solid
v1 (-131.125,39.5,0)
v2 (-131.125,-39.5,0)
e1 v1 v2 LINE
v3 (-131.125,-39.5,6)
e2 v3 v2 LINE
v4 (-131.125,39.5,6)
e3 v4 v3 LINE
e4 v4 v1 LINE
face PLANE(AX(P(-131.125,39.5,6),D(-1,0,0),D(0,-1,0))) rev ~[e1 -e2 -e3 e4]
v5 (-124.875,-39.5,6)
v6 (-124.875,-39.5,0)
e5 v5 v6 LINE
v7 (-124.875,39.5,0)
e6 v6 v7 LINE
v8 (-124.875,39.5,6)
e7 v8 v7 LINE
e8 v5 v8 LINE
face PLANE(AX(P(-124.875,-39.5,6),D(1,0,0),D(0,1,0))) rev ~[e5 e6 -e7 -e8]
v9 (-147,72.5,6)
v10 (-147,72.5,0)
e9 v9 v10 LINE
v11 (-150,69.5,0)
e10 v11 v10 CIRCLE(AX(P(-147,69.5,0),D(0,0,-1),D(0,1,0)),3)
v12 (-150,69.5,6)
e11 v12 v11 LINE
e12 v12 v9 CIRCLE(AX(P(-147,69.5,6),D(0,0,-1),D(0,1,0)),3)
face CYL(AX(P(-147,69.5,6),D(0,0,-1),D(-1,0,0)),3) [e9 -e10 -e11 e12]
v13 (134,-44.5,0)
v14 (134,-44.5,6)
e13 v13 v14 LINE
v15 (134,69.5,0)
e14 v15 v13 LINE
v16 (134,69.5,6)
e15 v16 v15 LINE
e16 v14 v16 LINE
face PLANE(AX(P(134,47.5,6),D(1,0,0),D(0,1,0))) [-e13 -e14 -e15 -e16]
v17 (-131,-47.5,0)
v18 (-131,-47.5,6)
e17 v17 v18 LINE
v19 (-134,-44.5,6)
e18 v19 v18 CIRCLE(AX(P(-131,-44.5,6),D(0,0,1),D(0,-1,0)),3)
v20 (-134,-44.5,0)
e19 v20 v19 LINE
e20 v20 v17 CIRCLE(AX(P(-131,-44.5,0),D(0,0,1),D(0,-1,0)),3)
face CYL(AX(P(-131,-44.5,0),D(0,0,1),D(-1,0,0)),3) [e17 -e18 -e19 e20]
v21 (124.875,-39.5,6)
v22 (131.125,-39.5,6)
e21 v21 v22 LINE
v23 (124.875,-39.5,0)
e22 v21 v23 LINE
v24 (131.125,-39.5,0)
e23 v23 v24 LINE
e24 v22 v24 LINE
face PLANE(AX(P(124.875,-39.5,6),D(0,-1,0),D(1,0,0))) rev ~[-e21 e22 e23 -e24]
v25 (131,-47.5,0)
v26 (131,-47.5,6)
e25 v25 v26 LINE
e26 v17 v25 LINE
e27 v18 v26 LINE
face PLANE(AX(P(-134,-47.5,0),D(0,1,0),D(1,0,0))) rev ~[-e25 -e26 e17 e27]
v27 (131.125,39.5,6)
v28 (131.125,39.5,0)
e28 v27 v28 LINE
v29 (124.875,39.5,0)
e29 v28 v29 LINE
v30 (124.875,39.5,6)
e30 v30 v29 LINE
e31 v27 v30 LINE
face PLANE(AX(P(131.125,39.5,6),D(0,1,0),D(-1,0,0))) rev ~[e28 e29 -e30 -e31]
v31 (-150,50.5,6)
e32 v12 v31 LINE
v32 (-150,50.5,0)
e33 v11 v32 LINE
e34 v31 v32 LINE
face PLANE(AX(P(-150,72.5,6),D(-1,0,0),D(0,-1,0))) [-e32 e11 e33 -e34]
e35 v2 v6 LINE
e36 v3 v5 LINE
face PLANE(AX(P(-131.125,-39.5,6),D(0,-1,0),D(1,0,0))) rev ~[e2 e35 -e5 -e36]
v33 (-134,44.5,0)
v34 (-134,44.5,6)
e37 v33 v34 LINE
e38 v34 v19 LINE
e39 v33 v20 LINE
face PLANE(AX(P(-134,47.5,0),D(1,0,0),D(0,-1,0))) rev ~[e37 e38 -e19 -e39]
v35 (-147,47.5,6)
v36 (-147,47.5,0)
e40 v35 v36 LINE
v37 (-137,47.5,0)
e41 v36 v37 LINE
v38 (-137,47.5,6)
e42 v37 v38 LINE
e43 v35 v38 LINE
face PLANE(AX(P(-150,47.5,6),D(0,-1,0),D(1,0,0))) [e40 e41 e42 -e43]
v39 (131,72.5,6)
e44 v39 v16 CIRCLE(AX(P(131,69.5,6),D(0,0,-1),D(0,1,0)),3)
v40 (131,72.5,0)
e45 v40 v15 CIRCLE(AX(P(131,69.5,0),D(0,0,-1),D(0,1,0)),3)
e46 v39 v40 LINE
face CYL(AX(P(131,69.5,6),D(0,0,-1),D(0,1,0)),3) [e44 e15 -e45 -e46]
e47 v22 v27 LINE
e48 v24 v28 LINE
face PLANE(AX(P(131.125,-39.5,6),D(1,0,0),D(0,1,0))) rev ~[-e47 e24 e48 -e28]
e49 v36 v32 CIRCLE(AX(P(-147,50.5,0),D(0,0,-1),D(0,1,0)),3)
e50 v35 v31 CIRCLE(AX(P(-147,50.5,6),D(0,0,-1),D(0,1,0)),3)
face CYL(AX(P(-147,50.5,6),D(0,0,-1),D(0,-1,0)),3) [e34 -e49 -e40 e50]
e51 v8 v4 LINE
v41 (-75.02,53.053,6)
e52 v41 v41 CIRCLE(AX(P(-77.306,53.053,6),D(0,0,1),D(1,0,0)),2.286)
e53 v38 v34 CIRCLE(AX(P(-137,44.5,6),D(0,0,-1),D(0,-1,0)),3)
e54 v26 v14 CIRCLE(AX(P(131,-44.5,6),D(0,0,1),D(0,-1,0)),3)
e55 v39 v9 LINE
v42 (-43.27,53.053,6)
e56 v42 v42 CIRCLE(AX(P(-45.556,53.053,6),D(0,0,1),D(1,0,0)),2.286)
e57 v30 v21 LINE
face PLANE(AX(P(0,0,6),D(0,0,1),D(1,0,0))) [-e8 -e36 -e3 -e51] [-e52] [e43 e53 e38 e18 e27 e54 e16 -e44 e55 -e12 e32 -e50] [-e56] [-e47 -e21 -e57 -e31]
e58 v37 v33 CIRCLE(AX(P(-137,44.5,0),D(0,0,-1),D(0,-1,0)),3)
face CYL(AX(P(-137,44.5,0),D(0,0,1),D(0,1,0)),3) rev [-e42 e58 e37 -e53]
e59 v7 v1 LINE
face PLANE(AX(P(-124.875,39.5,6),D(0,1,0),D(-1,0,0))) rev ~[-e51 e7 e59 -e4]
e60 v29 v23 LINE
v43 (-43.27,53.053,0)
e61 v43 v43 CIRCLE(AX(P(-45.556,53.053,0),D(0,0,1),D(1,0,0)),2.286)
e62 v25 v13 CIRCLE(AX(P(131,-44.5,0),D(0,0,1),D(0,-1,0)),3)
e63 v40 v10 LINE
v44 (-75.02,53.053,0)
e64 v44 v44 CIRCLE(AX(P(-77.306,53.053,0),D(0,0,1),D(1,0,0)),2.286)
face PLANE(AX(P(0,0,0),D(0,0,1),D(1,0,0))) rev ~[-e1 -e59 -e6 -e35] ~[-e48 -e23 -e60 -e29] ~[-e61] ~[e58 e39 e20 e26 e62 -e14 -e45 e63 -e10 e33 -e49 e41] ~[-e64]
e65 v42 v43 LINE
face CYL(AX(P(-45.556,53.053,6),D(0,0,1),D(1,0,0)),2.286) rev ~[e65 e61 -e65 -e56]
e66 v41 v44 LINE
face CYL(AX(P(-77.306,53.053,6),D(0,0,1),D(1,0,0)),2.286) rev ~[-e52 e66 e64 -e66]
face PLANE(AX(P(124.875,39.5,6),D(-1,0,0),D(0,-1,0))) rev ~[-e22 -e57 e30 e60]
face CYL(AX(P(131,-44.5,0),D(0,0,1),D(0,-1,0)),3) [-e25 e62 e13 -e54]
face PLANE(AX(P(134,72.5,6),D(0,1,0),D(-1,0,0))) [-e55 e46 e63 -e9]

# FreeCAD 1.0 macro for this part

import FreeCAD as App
import Part
import Sketcher

V = App.Vector


def edges_at(feature, points):
    """Names of the edges that pass closest to the given points."""
    edges = feature.Shape.Edges
    near = lambda p: min(range(len(edges)), key=lambda i: edges[i].distToShape(Part.Vertex(*p))[0])
    return sorted({f"Edge{near(p) + 1}" for p in points})


def add_polygon(sketch, points):
    """Adds a closed chain of lines whose ends are joined by coincident constraints."""
    first, n = sketch.GeometryCount, len(points)
    for a, b in zip(points, points[1:] + points[:1]):
        sketch.addGeometry(Part.LineSegment(App.Vector(*a, 0), App.Vector(*b, 0)), False)
    for i in range(n):
        sketch.addConstraint(Sketcher.Constraint("Coincident", first + i, 2, first + (i + 1) % n, 1))

doc = App.newDocument("Part")
params = doc.addObject("Spreadsheet::Sheet", "Params")
for row, (alias, value) in enumerate([
    ("sketch1_width", "268 mm"),
    ("sketch1_height", "95 mm"),
    ("pad1_length", "6 mm"),
    ("sketch2_width", "6.25 mm"),
    ("sketch2_height", "79 mm"),
    ("fillet_radius", "3 mm"),
    ("sketch3_height", "25 mm"),
    ("sketch3_width", "284 mm"),
    ("pad2_length", "6 mm"),
    ("fillet2_radius", "3 mm"),
    ("pocket2_length", "10 mm"),
], start=1):
    params.set(f"A{row}", alias)
    params.set(f"B{row}", "=" + value)
    params.setAlias(f"B{row}", alias)

body = doc.addObject("PartDesign::Body", "Body")

# Sketch on XY plane
sketch1 = body.newObject("Sketcher::SketchObject", "Sketch")
sketch1.AttachmentSupport = (doc.getObject("XY_Plane"), [""])
sketch1.MapMode = "FlatFace"
add_polygon(sketch1, [(-134, 48), (-134, -48), (134, -48), (134, 48)])  # lines 0-3
sketch1.addConstraint([
    Sketcher.Constraint("Vertical", 0),
    Sketcher.Constraint("Horizontal", 1),
    Sketcher.Constraint("Vertical", 2),
    Sketcher.Constraint("Horizontal", 3),
    Sketcher.Constraint("Symmetric", 0, 2, 2, 2, -1, 1),
    Sketcher.Constraint("DistanceX", 1, 1, 1, 2, 268.0),
    Sketcher.Constraint("DistanceY", 0, 2, 0, 1, 95.0),
])
sketch1.setExpression("Constraints[9]", "Params.sketch1_width")
sketch1.setExpression("Constraints[10]", "Params.sketch1_height")
pad1 = body.newObject("PartDesign::Pad", "Pad")
pad1.Profile = sketch1
pad1.setExpression("Length", "Params.pad1_length")

# Sketch on XY plane
sketch2 = body.newObject("Sketcher::SketchObject", "Sketch001")
sketch2.AttachmentSupport = (doc.getObject("XY_Plane"), [""])
sketch2.MapMode = "FlatFace"
sketch2.AttachmentOffset = App.Placement(V(0, 0, 6), App.Rotation())
add_polygon(sketch2, [(-131, 40), (-131, -40), (-125, -40), (-125, 40)])  # lines 0-3
add_polygon(sketch2, [(125, 40), (125, -40), (131, -40), (131, 40)])  # lines 4-7
sketch2.addConstraint([
    Sketcher.Constraint("Vertical", 0),
    Sketcher.Constraint("Horizontal", 1),
    Sketcher.Constraint("Vertical", 2),
    Sketcher.Constraint("Horizontal", 3),
    Sketcher.Constraint("Vertical", 4),
    Sketcher.Constraint("Horizontal", 5),
    Sketcher.Constraint("Vertical", 6),
    Sketcher.Constraint("Horizontal", 7),
    Sketcher.Constraint("Symmetric", 2, 2, 4, 2, -1, 1),
    Sketcher.Constraint("Symmetric", 0, 2, 6, 2, -1, 1),
    Sketcher.Constraint("Horizontal", 1, 2, 4, 2),
    Sketcher.Constraint("DistanceX", 1, 1, 1, 2, 6.25),
    Sketcher.Constraint("DistanceY", 0, 2, 0, 1, 79.0),
    Sketcher.Constraint("DistanceX", 0, 2, 4, 2, 256.0),
])
sketch2.setExpression("Constraints[19]", "Params.sketch2_width")
sketch2.setExpression("Constraints[20]", "Params.sketch2_height")
pocket1 = body.newObject("PartDesign::Pocket", "Pocket")
pocket1.Profile = sketch2
pocket1.Type = "ThroughAll"
doc.recompute()

fillet = body.newObject("PartDesign::Fillet", "Fillet")
fillet.Base = (pocket1, edges_at(pocket1, [(-134, -47.5, 3), (134, -47.5, 3)]))
fillet.setExpression("Radius", "Params.fillet_radius")

# Sketch on XY plane
sketch3 = body.newObject("Sketcher::SketchObject", "Sketch002")
sketch3.AttachmentSupport = (doc.getObject("XY_Plane"), [""])
sketch3.MapMode = "FlatFace"
sketch3.AttachmentOffset = App.Placement(V(0, 0, 6), App.Rotation())
add_polygon(sketch3, [(-150, 48), (134, 48), (134, 72), (-150, 72)])  # lines 0-3
sketch3.addConstraint([
    Sketcher.Constraint("Horizontal", 0),
    Sketcher.Constraint("Vertical", 1),
    Sketcher.Constraint("Horizontal", 2),
    Sketcher.Constraint("Vertical", 3),
    Sketcher.Constraint("DistanceY", 1, 1, 1, 2, 25.0),
    Sketcher.Constraint("DistanceX", 2, 2, -1, 1, 150.0),
    Sketcher.Constraint("DistanceX", 0, 1, 0, 2, 284.0),
    Sketcher.Constraint("DistanceY", -1, 1, 0, 2, 47.5),
])
sketch3.setExpression("Constraints[8]", "Params.sketch3_height")
sketch3.setExpression("Constraints[10]", "Params.sketch3_width")
pad2 = body.newObject("PartDesign::Pad", "Pad001")
pad2.Profile = sketch3
pad2.setExpression("Length", "Params.pad2_length")
pad2.Reversed = True
doc.recompute()

fillet2 = body.newObject("PartDesign::Fillet", "Fillet001")
fillet2.Base = (pad2, edges_at(pad2, [
    (134, 72.5, 3),
    (-150, 47.5, 3),
    (-150, 72.5, 3),
    (-134, 47.5, 3),
]))
fillet2.setExpression("Radius", "Params.fillet2_radius")

# Sketch on XY plane
sketch4 = body.newObject("Sketcher::SketchObject", "Sketch003")
sketch4.AttachmentSupport = (doc.getObject("XY_Plane"), [""])
sketch4.MapMode = "FlatFace"
sketch4.AttachmentOffset = App.Placement(V(0, 0, 6), App.Rotation())
sketch4.addGeometry([
    Part.Circle(V(-77.3, 53.1, 0), V(0, 0, 1), 2.3),
    Part.Circle(V(-45.6, 53.1, 0), V(0, 0, 1), 2.3),
], False)
sketch4.addConstraint([
    Sketcher.Constraint("Equal", 0, 1),
    Sketcher.Constraint("Horizontal", 0, 3, 1, 3),
    Sketcher.Constraint("Diameter", 0, 4.572),
    Sketcher.Constraint("DistanceX", 0, 3, 1, 3, 31.75),
    Sketcher.Constraint("DistanceX", 0, 3, -1, 1, 77.306),
    Sketcher.Constraint("DistanceY", -1, 1, 0, 3, 53.053),
])
pocket2 = body.newObject("PartDesign::Pocket", "Pocket001")
pocket2.Profile = sketch4
pocket2.setExpression("Length", "Params.pocket2_length")

doc.recompute()
